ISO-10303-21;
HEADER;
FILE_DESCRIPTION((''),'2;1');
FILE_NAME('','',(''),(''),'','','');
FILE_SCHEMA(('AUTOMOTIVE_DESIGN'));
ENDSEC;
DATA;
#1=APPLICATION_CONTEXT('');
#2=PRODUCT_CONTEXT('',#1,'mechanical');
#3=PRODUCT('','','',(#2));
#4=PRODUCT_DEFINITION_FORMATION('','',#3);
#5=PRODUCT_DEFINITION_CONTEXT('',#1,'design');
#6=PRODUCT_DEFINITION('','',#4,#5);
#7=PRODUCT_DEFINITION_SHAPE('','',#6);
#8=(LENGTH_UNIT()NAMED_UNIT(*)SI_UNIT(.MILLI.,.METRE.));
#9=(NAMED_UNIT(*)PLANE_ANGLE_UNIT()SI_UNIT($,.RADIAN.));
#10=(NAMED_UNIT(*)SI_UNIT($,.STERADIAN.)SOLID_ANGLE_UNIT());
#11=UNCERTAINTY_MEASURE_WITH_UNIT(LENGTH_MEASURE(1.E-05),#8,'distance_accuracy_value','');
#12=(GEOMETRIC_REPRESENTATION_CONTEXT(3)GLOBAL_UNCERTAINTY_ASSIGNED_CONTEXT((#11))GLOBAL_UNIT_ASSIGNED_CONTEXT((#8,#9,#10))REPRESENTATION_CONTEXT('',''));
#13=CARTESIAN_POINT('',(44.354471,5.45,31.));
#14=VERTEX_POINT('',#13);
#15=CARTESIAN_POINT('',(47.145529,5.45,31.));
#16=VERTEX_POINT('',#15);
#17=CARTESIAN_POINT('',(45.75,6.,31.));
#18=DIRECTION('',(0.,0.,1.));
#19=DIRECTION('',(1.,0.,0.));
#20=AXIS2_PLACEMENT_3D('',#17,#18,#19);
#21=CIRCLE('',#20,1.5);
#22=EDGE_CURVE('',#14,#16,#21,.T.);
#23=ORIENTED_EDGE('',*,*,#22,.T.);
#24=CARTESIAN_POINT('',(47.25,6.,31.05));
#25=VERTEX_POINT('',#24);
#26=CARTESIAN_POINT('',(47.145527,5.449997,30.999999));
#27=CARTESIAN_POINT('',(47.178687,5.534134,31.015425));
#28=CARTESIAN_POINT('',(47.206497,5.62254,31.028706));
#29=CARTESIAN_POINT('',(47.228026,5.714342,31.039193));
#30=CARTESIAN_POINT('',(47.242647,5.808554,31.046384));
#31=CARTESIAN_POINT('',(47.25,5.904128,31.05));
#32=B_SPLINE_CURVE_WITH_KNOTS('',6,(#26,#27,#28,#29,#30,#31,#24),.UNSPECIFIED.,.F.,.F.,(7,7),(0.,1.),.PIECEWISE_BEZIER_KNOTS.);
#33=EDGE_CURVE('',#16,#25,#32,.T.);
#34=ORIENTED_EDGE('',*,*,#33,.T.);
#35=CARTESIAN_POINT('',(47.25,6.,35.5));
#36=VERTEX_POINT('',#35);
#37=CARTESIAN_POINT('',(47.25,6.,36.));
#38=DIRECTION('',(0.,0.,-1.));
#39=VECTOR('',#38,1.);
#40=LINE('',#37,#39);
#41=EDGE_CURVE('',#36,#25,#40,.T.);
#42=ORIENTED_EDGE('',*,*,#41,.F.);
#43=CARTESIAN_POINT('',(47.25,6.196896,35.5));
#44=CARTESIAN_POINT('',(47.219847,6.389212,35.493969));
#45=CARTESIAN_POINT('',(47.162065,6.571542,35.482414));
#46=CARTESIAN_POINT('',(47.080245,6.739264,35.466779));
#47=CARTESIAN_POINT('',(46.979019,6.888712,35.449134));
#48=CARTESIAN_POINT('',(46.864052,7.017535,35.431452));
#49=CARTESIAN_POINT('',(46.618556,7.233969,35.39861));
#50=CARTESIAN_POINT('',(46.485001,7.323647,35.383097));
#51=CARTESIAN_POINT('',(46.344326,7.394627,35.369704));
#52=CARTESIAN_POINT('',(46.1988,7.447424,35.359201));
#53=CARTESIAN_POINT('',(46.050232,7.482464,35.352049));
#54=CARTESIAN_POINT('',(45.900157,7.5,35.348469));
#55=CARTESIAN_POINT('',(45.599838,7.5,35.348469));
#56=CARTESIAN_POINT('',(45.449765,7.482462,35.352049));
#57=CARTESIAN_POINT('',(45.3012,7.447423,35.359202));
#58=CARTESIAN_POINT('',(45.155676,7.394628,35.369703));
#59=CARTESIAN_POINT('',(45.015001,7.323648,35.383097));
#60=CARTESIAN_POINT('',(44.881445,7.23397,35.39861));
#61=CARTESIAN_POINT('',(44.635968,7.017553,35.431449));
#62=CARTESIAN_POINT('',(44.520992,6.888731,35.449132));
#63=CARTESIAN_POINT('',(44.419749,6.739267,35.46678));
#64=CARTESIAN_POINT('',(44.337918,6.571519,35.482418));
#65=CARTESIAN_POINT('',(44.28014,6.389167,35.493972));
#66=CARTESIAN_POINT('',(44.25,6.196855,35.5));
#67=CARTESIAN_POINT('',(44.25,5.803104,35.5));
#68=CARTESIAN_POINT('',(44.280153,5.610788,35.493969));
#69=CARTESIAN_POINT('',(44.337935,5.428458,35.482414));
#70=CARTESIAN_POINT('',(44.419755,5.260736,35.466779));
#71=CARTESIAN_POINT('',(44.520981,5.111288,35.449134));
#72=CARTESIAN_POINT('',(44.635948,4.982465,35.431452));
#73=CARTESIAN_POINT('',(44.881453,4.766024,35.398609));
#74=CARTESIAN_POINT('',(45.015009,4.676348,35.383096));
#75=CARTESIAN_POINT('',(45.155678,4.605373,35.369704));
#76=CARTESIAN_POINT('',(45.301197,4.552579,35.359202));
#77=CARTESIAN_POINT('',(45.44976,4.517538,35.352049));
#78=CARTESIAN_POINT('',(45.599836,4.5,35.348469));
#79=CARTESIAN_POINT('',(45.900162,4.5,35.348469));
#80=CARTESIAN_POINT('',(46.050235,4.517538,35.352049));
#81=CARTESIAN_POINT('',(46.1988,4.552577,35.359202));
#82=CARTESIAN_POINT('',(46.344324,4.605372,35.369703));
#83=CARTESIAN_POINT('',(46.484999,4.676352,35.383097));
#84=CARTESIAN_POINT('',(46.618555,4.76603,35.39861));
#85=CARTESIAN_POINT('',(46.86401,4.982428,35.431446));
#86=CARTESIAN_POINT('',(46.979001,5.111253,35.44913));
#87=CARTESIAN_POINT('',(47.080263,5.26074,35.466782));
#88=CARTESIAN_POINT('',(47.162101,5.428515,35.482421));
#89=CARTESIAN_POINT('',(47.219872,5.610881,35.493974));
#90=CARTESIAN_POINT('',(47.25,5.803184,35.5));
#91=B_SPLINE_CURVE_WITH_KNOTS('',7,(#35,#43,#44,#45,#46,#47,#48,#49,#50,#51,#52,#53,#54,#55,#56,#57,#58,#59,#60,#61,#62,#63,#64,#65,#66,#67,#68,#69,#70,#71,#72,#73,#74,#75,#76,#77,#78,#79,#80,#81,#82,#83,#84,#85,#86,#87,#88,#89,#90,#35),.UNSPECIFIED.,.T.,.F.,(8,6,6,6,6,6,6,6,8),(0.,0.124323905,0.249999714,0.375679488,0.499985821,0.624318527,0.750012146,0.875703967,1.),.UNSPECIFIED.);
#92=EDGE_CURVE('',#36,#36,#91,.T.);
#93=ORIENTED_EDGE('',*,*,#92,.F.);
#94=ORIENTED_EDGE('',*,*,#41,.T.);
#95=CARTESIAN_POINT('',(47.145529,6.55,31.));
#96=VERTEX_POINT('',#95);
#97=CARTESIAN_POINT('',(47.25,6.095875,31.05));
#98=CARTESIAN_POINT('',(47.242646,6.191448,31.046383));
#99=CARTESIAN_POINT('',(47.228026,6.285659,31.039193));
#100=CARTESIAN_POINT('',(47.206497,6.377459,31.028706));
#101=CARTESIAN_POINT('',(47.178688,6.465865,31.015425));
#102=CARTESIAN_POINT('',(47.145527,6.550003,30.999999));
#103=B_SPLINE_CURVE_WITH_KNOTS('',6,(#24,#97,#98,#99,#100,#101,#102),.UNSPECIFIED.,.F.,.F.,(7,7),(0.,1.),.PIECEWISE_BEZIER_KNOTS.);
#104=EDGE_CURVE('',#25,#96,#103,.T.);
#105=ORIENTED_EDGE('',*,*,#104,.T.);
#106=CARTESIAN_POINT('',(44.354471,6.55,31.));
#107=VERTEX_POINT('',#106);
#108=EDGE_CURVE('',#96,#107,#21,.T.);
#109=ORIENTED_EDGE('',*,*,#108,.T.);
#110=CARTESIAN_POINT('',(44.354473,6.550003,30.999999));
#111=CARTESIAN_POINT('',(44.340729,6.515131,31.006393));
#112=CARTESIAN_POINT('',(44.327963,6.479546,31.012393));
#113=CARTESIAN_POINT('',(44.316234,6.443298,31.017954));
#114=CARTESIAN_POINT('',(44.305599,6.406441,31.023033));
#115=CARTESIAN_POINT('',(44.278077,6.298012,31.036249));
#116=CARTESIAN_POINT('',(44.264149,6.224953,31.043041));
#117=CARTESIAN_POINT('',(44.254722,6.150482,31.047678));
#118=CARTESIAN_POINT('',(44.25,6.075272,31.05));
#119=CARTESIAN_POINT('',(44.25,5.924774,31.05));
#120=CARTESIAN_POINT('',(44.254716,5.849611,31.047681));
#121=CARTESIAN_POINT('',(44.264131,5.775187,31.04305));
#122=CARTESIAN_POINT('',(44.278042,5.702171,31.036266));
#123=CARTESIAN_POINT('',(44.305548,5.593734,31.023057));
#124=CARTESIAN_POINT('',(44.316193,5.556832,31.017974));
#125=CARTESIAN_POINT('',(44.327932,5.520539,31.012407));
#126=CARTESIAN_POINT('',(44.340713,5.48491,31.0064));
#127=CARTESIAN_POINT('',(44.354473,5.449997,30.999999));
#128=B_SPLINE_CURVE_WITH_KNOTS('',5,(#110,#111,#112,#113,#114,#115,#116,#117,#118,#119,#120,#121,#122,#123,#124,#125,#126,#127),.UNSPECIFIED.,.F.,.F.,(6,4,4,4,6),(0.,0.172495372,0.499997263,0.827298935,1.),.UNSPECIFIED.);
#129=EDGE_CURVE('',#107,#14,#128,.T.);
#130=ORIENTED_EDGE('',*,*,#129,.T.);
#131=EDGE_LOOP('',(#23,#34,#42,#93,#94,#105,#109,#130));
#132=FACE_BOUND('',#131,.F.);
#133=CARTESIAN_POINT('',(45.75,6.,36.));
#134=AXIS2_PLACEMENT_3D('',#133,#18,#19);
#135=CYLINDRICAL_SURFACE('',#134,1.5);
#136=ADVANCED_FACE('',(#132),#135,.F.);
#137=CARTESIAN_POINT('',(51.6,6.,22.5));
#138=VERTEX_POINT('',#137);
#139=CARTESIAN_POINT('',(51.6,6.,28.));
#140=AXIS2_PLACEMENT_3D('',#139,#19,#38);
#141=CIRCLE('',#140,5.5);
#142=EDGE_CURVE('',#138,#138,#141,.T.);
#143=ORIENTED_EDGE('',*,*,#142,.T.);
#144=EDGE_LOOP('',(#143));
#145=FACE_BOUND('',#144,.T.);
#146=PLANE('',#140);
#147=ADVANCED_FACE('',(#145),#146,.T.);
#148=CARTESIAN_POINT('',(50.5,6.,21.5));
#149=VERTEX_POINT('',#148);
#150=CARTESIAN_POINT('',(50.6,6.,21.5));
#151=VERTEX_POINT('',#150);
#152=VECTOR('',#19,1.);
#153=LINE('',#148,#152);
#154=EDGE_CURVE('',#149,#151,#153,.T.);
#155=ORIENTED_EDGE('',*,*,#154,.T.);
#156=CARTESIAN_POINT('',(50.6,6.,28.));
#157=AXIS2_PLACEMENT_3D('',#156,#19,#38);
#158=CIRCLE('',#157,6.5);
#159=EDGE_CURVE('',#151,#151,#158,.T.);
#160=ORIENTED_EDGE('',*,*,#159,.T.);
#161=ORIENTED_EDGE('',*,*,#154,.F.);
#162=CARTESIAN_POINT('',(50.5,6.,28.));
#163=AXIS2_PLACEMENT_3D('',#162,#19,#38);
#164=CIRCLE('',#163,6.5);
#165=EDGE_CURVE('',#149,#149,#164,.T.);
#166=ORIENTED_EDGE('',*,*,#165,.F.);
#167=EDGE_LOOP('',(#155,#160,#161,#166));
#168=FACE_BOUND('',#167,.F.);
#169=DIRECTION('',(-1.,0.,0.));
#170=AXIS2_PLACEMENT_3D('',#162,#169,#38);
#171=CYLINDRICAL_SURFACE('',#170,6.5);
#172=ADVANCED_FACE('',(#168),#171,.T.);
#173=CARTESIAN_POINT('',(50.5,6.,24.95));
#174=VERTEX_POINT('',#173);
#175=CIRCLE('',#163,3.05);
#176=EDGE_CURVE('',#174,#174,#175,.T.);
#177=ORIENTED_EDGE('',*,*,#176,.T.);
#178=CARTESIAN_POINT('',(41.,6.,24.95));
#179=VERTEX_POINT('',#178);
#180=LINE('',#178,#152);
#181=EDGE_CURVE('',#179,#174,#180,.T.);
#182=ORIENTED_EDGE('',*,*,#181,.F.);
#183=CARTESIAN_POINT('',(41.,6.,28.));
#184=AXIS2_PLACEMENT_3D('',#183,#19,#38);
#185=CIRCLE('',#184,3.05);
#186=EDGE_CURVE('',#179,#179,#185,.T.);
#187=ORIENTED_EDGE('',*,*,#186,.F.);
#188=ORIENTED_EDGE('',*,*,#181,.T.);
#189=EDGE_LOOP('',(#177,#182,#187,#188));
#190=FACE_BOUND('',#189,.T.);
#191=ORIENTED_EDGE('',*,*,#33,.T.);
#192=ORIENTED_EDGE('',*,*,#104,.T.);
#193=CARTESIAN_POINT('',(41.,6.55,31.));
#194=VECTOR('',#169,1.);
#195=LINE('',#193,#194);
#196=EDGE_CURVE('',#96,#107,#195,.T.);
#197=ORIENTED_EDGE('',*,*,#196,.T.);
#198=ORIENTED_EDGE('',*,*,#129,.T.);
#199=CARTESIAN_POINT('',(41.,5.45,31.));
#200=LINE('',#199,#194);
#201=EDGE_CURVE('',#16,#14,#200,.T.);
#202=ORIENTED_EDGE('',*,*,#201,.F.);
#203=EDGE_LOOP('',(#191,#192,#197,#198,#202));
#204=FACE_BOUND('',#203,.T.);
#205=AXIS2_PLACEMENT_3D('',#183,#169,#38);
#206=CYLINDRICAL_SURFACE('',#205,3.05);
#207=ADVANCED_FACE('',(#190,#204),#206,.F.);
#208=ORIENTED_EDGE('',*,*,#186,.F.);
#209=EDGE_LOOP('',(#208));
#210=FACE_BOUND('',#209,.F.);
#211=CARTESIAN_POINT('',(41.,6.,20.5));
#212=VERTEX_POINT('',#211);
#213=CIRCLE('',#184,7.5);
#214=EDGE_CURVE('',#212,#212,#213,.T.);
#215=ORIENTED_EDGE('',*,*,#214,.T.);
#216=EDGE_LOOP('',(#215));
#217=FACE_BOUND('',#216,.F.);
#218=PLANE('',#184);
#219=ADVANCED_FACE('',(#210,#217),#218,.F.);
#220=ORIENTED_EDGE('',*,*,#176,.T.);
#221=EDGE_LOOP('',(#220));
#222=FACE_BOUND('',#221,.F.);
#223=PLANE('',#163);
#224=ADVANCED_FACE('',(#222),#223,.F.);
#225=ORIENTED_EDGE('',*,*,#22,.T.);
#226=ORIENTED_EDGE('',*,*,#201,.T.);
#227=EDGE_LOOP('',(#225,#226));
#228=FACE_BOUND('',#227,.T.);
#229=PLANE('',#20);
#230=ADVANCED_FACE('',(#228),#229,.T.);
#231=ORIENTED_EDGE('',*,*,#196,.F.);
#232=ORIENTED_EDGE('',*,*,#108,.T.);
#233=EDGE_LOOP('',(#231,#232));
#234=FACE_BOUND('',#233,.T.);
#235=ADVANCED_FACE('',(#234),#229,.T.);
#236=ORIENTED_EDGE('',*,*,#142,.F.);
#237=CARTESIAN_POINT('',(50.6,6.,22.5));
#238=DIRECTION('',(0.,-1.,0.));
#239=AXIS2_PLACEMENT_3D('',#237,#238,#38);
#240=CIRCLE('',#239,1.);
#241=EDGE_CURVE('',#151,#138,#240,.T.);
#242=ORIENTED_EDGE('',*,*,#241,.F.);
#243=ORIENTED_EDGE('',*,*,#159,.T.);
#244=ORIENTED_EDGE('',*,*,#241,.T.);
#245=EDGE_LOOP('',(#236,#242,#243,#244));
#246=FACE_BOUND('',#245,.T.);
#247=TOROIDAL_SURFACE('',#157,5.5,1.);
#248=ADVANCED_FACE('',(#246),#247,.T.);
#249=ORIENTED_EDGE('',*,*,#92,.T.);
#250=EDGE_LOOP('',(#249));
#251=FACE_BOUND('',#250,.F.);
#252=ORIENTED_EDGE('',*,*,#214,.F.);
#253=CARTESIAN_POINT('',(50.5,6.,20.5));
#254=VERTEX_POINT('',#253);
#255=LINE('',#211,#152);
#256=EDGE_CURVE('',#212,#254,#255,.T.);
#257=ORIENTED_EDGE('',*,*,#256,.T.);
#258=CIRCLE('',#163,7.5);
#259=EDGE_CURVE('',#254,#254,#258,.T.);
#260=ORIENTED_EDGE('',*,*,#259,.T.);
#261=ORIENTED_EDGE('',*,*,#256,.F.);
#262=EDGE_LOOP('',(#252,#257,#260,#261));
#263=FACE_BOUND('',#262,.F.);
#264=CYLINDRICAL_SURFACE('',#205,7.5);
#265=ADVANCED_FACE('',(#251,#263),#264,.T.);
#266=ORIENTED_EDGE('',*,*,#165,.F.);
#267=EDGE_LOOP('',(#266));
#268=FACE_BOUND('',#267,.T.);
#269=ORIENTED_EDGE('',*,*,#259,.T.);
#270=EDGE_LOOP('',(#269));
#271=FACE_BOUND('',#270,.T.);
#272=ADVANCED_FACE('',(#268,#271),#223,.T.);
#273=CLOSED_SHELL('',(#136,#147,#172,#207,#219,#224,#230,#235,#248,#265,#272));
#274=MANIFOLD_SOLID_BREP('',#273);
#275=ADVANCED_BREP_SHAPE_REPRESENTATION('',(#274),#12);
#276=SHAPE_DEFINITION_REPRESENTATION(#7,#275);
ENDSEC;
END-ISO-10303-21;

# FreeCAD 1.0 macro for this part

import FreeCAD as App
import Part
import Sketcher


def edges_at(feature, points):
    """Names of the edges that pass closest to the given points."""
    edges = feature.Shape.Edges
    near = lambda p: min(range(len(edges)), key=lambda i: edges[i].distToShape(Part.Vertex(*p))[0])
    return sorted({f"Edge{near(p) + 1}" for p in points})

doc = App.newDocument("Part")
body = doc.addObject("PartDesign::Body", "Body")

sketch1 = body.newObject("Sketcher::SketchObject", "Sketch")
sketch1.AttachmentSupport = (doc.getObject("XY_Plane"), [""])
sketch1.MapMode = "FlatFace"
sketch1.addGeometry(Part.Circle(App.Vector(0, 0, 0), App.Vector(0, 0, 1), 7.5), False)
sketch1.addGeometry(Part.Circle(App.Vector(0, 0, 0), App.Vector(0, 0, 1), 3), False)
sketch1.addConstraint(Sketcher.Constraint("Coincident", 0, 3, -1, 1))
sketch1.addConstraint(Sketcher.Constraint("Coincident", 1, 3, -1, 1))
sketch1.addConstraint(Sketcher.Constraint("Diameter", 0, 15.0))
sketch1.addConstraint(Sketcher.Constraint("Diameter", 1, 6.1))
pad1 = body.newObject("PartDesign::Pad", "Pad")
pad1.Profile = sketch1
pad1.Length = 9.5

sketch2 = body.newObject("Sketcher::SketchObject", "Sketch001")
sketch2.AttachmentSupport = (doc.getObject("XY_Plane"), [""])
sketch2.MapMode = "FlatFace"
sketch2.AttachmentOffset = App.Placement(App.Vector(0, 0, 9.5), App.Rotation())
sketch2.addGeometry(Part.Circle(App.Vector(0, 0, 0), App.Vector(0, 0, 1), 6), False)
sketch2.addConstraint(Sketcher.Constraint("Coincident", 0, 3, -1, 1))
sketch2.addConstraint(Sketcher.Constraint("Diameter", 0, 13.0))
pad2 = body.newObject("PartDesign::Pad", "Pad001")
pad2.Profile = sketch2
pad2.Length = 1.1
doc.recompute()

fillet = body.newObject("PartDesign::Fillet", "Fillet")
fillet.Base = (pad2, edges_at(pad2, [(-6.5, 0, 10.6)]))
fillet.Radius = 1

sketch3 = body.newObject("Sketcher::SketchObject", "Sketch002")
sketch3.AttachmentSupport = (doc.getObject("YZ_Plane"), [""])
sketch3.MapMode = "FlatFace"
sketch3.AttachmentOffset = App.Placement(App.Vector(0, 0, -8), App.Rotation())
sketch3.addGeometry(Part.Circle(App.Vector(0, 4.8, 0), App.Vector(0, 0, 1), 1.5), False)
sketch3.addConstraint(Sketcher.Constraint("PointOnObject", 0, 3, -2))
sketch3.addConstraint(Sketcher.Constraint("Diameter", 0, 3.0))
sketch3.addConstraint(Sketcher.Constraint("DistanceY", -1, 1, 0, 3, 4.75))
pocket1 = body.newObject("PartDesign::Pocket", "Pocket")
pocket1.Profile = sketch3
pocket1.Length = 5
pocket1.Reversed = True
body2 = doc.addObject("PartDesign::Body", "Body001")
doc.recompute()

body.Placement = App.Placement(App.Vector(41, 6, 28), App.Rotation(App.Vector(0, 1, 0), 90))
boolean = body2.newObject("PartDesign::Boolean", "Boolean")
boolean.Type = "Fuse"
boolean.addObjects([body])

doc.recompute()
